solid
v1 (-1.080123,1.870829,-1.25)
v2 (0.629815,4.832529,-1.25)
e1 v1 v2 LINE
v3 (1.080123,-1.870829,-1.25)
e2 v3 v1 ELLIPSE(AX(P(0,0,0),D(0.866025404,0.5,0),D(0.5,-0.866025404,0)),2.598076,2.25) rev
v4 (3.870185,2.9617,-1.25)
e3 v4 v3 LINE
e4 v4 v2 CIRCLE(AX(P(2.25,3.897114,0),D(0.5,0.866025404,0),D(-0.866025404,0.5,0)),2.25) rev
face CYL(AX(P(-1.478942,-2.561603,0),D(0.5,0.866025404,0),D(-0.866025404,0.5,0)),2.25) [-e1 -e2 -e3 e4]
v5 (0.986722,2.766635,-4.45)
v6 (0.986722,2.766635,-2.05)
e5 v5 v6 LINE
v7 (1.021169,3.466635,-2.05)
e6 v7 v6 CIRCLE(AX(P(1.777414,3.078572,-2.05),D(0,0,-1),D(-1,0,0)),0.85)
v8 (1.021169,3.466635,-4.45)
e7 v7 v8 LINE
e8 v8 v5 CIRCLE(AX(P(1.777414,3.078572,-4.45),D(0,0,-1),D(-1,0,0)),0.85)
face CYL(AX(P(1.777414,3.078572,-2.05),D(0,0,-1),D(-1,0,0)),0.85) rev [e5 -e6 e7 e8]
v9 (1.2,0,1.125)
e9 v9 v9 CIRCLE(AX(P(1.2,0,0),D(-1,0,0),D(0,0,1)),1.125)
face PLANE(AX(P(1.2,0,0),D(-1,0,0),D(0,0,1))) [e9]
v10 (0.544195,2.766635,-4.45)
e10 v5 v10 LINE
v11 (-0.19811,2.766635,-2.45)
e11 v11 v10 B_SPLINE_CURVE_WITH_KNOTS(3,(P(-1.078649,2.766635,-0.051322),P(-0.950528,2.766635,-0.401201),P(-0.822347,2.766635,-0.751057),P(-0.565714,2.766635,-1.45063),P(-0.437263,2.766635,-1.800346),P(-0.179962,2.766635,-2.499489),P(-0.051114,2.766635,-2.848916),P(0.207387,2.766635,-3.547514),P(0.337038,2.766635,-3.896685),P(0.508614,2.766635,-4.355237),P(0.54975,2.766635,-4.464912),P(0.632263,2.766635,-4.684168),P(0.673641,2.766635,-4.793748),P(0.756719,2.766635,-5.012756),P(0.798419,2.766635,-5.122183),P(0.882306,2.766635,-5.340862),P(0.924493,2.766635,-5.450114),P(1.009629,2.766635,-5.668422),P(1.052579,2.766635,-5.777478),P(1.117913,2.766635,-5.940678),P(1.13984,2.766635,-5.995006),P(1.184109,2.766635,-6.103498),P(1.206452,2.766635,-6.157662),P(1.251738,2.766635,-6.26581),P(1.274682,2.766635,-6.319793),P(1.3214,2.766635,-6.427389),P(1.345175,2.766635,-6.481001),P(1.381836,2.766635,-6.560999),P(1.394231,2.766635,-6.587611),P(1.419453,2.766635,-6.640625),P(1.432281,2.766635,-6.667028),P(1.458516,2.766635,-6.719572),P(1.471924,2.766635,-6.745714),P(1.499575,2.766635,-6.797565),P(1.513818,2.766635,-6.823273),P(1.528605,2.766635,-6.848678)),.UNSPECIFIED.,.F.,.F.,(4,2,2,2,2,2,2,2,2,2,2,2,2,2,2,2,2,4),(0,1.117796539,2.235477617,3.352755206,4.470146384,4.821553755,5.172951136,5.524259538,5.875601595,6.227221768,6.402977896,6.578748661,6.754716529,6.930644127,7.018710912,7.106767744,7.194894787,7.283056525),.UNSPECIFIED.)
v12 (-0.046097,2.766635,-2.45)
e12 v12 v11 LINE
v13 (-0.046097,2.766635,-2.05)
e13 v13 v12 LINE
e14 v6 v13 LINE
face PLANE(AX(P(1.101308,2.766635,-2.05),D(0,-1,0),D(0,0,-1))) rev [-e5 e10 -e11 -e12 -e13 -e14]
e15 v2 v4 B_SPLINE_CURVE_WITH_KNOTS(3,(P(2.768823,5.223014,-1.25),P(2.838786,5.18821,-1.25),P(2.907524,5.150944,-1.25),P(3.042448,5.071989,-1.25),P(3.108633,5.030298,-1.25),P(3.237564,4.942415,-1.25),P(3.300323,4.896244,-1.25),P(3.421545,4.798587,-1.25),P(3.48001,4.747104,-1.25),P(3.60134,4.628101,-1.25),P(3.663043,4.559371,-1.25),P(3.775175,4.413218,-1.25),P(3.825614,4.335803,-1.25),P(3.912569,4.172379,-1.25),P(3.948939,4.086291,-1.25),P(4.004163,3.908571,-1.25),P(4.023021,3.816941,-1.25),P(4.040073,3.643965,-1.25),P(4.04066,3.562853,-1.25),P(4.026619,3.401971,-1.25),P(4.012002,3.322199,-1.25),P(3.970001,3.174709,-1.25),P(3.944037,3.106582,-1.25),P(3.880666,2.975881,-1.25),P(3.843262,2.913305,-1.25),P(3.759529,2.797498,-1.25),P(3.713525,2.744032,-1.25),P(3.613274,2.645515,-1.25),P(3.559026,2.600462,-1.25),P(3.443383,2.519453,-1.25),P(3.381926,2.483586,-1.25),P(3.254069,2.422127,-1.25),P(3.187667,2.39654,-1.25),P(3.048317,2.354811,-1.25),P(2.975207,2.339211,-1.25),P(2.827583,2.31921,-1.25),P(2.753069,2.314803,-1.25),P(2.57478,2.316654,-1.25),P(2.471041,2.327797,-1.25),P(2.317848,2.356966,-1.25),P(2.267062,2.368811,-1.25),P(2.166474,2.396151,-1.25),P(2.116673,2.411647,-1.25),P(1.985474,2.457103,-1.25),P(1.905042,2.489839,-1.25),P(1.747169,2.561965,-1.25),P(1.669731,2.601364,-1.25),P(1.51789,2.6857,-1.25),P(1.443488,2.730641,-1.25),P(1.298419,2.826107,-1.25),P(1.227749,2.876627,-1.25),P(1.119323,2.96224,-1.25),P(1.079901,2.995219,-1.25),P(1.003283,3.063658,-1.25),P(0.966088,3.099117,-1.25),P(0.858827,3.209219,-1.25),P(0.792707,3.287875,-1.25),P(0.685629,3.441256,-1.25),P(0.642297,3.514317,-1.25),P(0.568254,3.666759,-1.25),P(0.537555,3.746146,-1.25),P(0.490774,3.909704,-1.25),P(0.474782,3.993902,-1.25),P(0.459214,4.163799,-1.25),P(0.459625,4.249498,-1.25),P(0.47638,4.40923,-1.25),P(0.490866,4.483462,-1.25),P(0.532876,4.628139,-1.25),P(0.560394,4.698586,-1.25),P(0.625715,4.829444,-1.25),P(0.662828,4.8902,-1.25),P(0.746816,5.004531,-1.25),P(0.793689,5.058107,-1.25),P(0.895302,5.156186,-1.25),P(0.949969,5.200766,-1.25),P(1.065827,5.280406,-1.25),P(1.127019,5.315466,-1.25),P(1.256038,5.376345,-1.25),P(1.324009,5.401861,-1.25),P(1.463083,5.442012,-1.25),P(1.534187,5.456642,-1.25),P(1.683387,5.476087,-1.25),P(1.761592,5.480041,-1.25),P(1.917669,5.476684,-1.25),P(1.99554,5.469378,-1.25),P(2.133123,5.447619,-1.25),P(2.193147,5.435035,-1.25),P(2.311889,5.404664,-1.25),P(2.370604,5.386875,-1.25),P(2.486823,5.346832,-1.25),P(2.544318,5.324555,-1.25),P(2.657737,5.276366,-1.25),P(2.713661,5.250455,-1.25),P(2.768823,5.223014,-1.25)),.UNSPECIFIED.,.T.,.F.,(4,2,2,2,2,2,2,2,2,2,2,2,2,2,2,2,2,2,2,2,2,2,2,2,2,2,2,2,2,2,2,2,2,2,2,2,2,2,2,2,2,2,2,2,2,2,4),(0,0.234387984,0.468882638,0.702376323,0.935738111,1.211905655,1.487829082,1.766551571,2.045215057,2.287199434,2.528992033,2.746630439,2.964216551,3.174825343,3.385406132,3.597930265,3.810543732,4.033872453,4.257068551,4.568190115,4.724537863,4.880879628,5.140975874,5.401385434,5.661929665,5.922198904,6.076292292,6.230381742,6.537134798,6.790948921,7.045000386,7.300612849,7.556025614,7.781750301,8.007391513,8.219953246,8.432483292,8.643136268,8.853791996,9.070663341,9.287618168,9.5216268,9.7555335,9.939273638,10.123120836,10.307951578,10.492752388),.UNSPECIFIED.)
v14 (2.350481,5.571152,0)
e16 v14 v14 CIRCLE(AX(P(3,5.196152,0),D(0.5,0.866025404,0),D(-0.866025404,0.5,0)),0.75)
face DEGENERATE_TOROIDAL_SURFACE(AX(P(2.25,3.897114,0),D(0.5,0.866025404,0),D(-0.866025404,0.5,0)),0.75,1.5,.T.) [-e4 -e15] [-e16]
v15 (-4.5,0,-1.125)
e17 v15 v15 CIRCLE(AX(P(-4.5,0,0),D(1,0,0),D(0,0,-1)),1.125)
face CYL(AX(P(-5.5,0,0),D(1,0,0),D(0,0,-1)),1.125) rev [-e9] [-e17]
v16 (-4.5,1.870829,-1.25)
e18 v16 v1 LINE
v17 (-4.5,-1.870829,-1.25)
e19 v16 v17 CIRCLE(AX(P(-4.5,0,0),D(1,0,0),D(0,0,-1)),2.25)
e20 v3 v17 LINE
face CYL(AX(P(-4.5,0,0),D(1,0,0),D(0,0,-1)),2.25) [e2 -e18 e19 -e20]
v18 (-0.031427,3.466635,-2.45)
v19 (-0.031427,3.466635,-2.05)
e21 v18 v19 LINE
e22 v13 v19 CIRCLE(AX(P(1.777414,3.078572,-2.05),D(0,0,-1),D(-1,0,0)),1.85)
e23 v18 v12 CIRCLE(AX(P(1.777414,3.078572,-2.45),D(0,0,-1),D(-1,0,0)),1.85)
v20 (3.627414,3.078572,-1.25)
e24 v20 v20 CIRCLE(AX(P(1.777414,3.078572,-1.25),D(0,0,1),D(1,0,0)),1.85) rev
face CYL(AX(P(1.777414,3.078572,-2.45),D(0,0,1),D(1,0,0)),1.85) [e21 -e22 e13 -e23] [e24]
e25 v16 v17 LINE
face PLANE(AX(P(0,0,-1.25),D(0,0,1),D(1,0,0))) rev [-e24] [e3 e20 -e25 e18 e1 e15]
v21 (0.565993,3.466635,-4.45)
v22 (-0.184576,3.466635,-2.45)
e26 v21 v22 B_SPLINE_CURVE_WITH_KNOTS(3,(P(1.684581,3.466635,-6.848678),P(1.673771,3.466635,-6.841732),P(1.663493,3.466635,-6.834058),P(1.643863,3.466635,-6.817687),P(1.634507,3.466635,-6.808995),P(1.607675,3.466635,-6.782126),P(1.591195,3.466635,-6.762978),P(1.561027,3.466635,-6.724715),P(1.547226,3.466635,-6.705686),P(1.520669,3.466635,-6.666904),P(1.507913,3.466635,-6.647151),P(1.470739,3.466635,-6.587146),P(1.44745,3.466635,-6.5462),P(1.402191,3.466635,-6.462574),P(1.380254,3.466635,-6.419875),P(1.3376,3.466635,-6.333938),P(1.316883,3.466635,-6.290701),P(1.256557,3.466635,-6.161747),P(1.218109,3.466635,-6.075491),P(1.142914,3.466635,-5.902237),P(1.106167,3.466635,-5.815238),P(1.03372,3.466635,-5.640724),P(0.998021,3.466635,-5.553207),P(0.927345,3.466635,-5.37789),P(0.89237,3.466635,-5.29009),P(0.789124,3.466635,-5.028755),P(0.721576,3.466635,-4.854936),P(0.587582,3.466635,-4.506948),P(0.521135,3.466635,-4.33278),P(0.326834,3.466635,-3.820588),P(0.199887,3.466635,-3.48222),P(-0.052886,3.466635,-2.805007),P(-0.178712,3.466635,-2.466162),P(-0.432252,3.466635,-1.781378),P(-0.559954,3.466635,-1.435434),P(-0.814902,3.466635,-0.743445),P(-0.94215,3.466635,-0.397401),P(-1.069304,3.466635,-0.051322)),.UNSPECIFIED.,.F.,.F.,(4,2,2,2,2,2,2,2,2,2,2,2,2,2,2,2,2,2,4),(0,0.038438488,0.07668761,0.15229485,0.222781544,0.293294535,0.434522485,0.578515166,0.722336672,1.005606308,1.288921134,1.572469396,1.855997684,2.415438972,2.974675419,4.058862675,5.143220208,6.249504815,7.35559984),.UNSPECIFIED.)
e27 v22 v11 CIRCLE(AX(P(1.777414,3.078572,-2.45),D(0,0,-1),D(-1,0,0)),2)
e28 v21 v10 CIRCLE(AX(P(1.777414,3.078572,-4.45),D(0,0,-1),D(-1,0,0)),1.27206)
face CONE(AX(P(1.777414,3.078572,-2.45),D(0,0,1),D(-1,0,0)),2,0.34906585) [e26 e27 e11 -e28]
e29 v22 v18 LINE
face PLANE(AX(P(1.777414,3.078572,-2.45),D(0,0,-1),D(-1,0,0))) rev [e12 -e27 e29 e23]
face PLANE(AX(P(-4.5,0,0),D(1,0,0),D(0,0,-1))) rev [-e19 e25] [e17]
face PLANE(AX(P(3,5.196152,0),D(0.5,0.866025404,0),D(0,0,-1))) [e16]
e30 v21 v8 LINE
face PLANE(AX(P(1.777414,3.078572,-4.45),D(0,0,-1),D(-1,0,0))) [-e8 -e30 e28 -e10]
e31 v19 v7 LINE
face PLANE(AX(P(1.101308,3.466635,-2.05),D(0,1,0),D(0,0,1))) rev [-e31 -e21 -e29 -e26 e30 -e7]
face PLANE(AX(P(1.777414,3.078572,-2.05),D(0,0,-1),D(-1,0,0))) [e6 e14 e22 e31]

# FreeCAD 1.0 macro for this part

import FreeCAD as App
import Part
import Sketcher
Q = App.Units.Quantity


def edges_at(feature, points):
    """Names of the edges that pass closest to the given points."""
    edges = feature.Shape.Edges
    near = lambda p: min(range(len(edges)), key=lambda i: edges[i].distToShape(Part.Vertex(*p))[0])
    return sorted({f"Edge{near(p) + 1}" for p in points})


def add_polygon(sketch, points):
    """Adds a closed chain of lines whose ends are joined by coincident constraints."""
    first, n = sketch.GeometryCount, len(points)
    for a, b in zip(points, points[1:] + points[:1]):
        sketch.addGeometry(Part.LineSegment(App.Vector(*a, 0), App.Vector(*b, 0)), False)
    for i in range(n):
        sketch.addConstraint(Sketcher.Constraint("Coincident", first + i, 2, first + (i + 1) % n, 1))

doc = App.newDocument("Part")
params = doc.addObject("Spreadsheet::Sheet", "Params")
for row, (alias, value) in enumerate([
    ("sketch1_diameter", "4.5 mm"),
    ("sketch2_length", "6 mm"),
    ("sketch2_width", "4.5 mm"),
    ("fillet_radius", "1.5 mm"),
    ("sketch3_diameter", "2.25 mm"),
    ("sketch4_width", "5.7 mm"),
    ("pocket1_length", "3 mm"),
    ("sketch6_diameter", "3.7 mm"),
    ("pad1_length", "1.2 mm"),
    ("sketch7_diameter", "4 mm"),
    ("pad2_length", "2 mm"),
    ("pad2_taper", "-20 deg"),
    ("sketch8_diameter", "1.7 mm"),
    ("pocket2_length", "2.4 mm"),
    ("sketch9_height", "0.7 mm"),
    ("pocket3_length", "2.4 mm"),
], start=1):
    params.set(f"A{row}", alias)
    params.set(f"B{row}", "=" + value)
    params.setAlias(f"B{row}", alias)

body = doc.addObject("PartDesign::Body", "Body")

# Sketch on YZ plane
sketch1 = body.newObject("Sketcher::SketchObject", "Sketch")
sketch1.AttachmentSupport = (doc.getObject("YZ_Plane"), [""])
sketch1.MapMode = "FlatFace"
sketch1.AttachmentOffset = App.Placement(App.Vector(0, 0, -4.5), App.Rotation())
sketch1.addGeometry(Part.Circle(App.Vector(0, 0, 0), App.Vector(0, 0, 1), 2.2), False)
sketch1.addConstraint([
    Sketcher.Constraint("Coincident", 0, 3, -1, 1),
    Sketcher.Constraint("Diameter", 0, 4.5),
])
sketch1.setExpression("Constraints[1]", "Params.sketch1_diameter")

# Sketch on XY plane
sketch2 = body.newObject("Sketcher::SketchObject", "Sketch001")
sketch2.AttachmentSupport = (doc.getObject("XY_Plane"), [""])
sketch2.MapMode = "FlatFace"
sketch2.addGeometry([
    Part.LineSegment(App.Vector(-4.5, 0, 0), App.Vector(0, 0, 0)),
    Part.LineSegment(App.Vector(0, 0, 0), App.Vector(3, 5.2, 0)),
], False)
sketch2.addConstraint([
    Sketcher.Constraint("Coincident", 0, 2, 1, 1),
    Sketcher.Constraint("Horizontal", 0),
    Sketcher.Constraint("Coincident", 0, 2, -1, 1),
    Sketcher.Constraint("Angle", 1, Q("60 deg")),
    Sketcher.Constraint("Distance", 1, 6.0),
    Sketcher.Constraint("DistanceX", 0, 1, 0, 2, 4.5),
])
sketch2.setExpression("Constraints[4]", "Params.sketch2_length")
sketch2.setExpression("Constraints[5]", "Params.sketch2_width")
doc.recompute()

additivepipe = body.newObject("PartDesign::AdditivePipe", "AdditivePipe")
additivepipe.Profile = sketch1
additivepipe.Spine = (sketch2, ["Edge1", "Edge2"])
additivepipe.Transition = "Right corner"
doc.recompute()

fillet = body.newObject("PartDesign::Fillet", "Fillet")
fillet.Base = (additivepipe, edges_at(additivepipe, [(3, 5.196, 2.25)]))
fillet.setExpression("Radius", "Params.fillet_radius")

# Sketch on YZ plane
sketch3 = body.newObject("Sketcher::SketchObject", "Sketch002")
sketch3.AttachmentSupport = (doc.getObject("YZ_Plane"), [""])
sketch3.MapMode = "FlatFace"
sketch3.AttachmentOffset = App.Placement(App.Vector(0, 0, -4.5), App.Rotation())
sketch3.addGeometry(Part.Circle(App.Vector(0, 0, 0), App.Vector(0, 0, 1), 1.1), False)
sketch3.addConstraint([
    Sketcher.Constraint("Coincident", 0, 3, -1, 1),
    Sketcher.Constraint("Diameter", 0, 2.25),
])
sketch3.setExpression("Constraints[1]", "Params.sketch3_diameter")

# Sketch on XY plane
sketch4 = body.newObject("Sketcher::SketchObject", "Sketch003")
sketch4.AttachmentSupport = (doc.getObject("XY_Plane"), [""])
sketch4.MapMode = "FlatFace"
sketch4.addGeometry(Part.LineSegment(App.Vector(-4, 0, 0), App.Vector(1, 0, 0)), False)
sketch4.addConstraint([
    Sketcher.Constraint("Horizontal", 0),
    Sketcher.Constraint("PointOnObject", 0, 1, -1),
    Sketcher.Constraint("DistanceX", 0, 1, 0, 2, 5.7),
    Sketcher.Constraint("DistanceX", 0, 1, -1, 1, 4.5),
])
sketch4.setExpression("Constraints[2]", "Params.sketch4_width")
doc.recompute()

subtractivepipe = body.newObject("PartDesign::SubtractivePipe", "SubtractivePipe")
subtractivepipe.Profile = sketch3
subtractivepipe.Spine = (sketch4, ["Edge1"])

# Sketch on XY plane
sketch5 = body.newObject("Sketcher::SketchObject", "Sketch004")
sketch5.AttachmentSupport = (doc.getObject("XY_Plane"), [""])
sketch5.MapMode = "FlatFace"
sketch5.AttachmentOffset = App.Placement(App.Vector(0, 0, -1.25), App.Rotation())
add_polygon(sketch5, [(-5, 6), (-5, -2), (5, -2), (5, 6)])  # lines 0-3
sketch5.addConstraint([
    Sketcher.Constraint("Vertical", 0),
    Sketcher.Constraint("Horizontal", 1),
    Sketcher.Constraint("Vertical", 2),
    Sketcher.Constraint("Horizontal", 3),
    Sketcher.Constraint("DistanceX", 1, 1, 1, 2, 9.29702),
    Sketcher.Constraint("DistanceY", 0, 2, 0, 1, 8.256436),
    Sketcher.Constraint("DistanceX", 0, 2, -1, 1, 4.667931),
    Sketcher.Constraint("DistanceY", 0, 2, -1, 1, 2.403011),
])
pocket1 = body.newObject("PartDesign::Pocket", "Pocket")
pocket1.Profile = sketch5
pocket1.setExpression("Length", "Params.pocket1_length")

# Sketch on XY plane
sketch6 = body.newObject("Sketcher::SketchObject", "Sketch005")
sketch6.AttachmentSupport = (doc.getObject("XY_Plane"), [""])
sketch6.MapMode = "FlatFace"
sketch6.AttachmentOffset = App.Placement(App.Vector(0, 0, -1.25), App.Rotation())
sketch6.addGeometry(Part.Circle(App.Vector(1.8, 3.1, 0), App.Vector(0, 0, 1), 1.9), False)
sketch6.addConstraint([
    Sketcher.Constraint("Diameter", 0, 3.7),
    Sketcher.Constraint("DistanceX", -1, 1, 0, 3, 1.777414),
    Sketcher.Constraint("DistanceY", -1, 1, 0, 3, 3.078572),
])
sketch6.setExpression("Constraints[0]", "Params.sketch6_diameter")
pad1 = body.newObject("PartDesign::Pad", "Pad")
pad1.Profile = sketch6
pad1.setExpression("Length", "Params.pad1_length")
pad1.Reversed = True

# Sketch on XY plane
sketch7 = body.newObject("Sketcher::SketchObject", "Sketch006")
sketch7.AttachmentSupport = (doc.getObject("XY_Plane"), [""])
sketch7.MapMode = "FlatFace"
sketch7.AttachmentOffset = App.Placement(App.Vector(0, 0, -2.45), App.Rotation())
sketch7.addGeometry(Part.Circle(App.Vector(1.8, 3.1, 0), App.Vector(0, 0, 1), 2), False)
sketch7.addConstraint([
    Sketcher.Constraint("Diameter", 0, 4.0),
    Sketcher.Constraint("DistanceX", -1, 1, 0, 3, 1.777414),
    Sketcher.Constraint("DistanceY", -1, 1, 0, 3, 3.078572),
])
sketch7.setExpression("Constraints[0]", "Params.sketch7_diameter")
pad2 = body.newObject("PartDesign::Pad", "Pad001")
pad2.Profile = sketch7
pad2.setExpression("Length", "Params.pad2_length")
pad2.Reversed = True
pad2.setExpression("TaperAngle", "Params.pad2_taper")

# Sketch on XY plane
sketch8 = body.newObject("Sketcher::SketchObject", "Sketch007")
sketch8.AttachmentSupport = (doc.getObject("XY_Plane"), [""])
sketch8.MapMode = "FlatFace"
sketch8.AttachmentOffset = App.Placement(App.Vector(0, 0, -4.45), App.Rotation())
sketch8.addGeometry(Part.Circle(App.Vector(1.8, 3.1, 0), App.Vector(0, 0, 1), 0.8), False)
sketch8.addConstraint([
    Sketcher.Constraint("Diameter", 0, 1.7),
    Sketcher.Constraint("DistanceX", -1, 1, 0, 3, 1.777414),
    Sketcher.Constraint("DistanceY", -1, 1, 0, 3, 3.078572),
])
sketch8.setExpression("Constraints[0]", "Params.sketch8_diameter")
pocket2 = body.newObject("PartDesign::Pocket", "Pocket001")
pocket2.Profile = sketch8
pocket2.setExpression("Length", "Params.pocket2_length")
pocket2.Reversed = True

# Sketch on XY plane
sketch9 = body.newObject("Sketcher::SketchObject", "Sketch008")
sketch9.AttachmentSupport = (doc.getObject("XY_Plane"), [""])
sketch9.MapMode = "FlatFace"
sketch9.AttachmentOffset = App.Placement(App.Vector(0, 0, -4.45), App.Rotation())
add_polygon(sketch9, [(1.1, 3.5), (1.1, 2.8), (-0.4, 2.8), (-0.4, 3.5)])  # lines 0-3
sketch9.addConstraint([
    Sketcher.Constraint("Vertical", 0),
    Sketcher.Constraint("Horizontal", 1),
    Sketcher.Constraint("Vertical", 2),
    Sketcher.Constraint("Horizontal", 3),
    Sketcher.Constraint("DistanceY", 0, 2, 0, 1, 0.7),
    Sketcher.Constraint("DistanceX", 1, 2, 1, 1, 1.535398),
    Sketcher.Constraint("DistanceX", -1, 1, 0, 2, 1.101308),
    Sketcher.Constraint("DistanceY", -1, 1, 0, 2, 2.766635),
])
sketch9.setExpression("Constraints[8]", "Params.sketch9_height")
pocket3 = body.newObject("PartDesign::Pocket", "Pocket002")
pocket3.Profile = sketch9
pocket3.setExpression("Length", "Params.pocket3_length")
pocket3.Reversed = True

doc.recompute()
